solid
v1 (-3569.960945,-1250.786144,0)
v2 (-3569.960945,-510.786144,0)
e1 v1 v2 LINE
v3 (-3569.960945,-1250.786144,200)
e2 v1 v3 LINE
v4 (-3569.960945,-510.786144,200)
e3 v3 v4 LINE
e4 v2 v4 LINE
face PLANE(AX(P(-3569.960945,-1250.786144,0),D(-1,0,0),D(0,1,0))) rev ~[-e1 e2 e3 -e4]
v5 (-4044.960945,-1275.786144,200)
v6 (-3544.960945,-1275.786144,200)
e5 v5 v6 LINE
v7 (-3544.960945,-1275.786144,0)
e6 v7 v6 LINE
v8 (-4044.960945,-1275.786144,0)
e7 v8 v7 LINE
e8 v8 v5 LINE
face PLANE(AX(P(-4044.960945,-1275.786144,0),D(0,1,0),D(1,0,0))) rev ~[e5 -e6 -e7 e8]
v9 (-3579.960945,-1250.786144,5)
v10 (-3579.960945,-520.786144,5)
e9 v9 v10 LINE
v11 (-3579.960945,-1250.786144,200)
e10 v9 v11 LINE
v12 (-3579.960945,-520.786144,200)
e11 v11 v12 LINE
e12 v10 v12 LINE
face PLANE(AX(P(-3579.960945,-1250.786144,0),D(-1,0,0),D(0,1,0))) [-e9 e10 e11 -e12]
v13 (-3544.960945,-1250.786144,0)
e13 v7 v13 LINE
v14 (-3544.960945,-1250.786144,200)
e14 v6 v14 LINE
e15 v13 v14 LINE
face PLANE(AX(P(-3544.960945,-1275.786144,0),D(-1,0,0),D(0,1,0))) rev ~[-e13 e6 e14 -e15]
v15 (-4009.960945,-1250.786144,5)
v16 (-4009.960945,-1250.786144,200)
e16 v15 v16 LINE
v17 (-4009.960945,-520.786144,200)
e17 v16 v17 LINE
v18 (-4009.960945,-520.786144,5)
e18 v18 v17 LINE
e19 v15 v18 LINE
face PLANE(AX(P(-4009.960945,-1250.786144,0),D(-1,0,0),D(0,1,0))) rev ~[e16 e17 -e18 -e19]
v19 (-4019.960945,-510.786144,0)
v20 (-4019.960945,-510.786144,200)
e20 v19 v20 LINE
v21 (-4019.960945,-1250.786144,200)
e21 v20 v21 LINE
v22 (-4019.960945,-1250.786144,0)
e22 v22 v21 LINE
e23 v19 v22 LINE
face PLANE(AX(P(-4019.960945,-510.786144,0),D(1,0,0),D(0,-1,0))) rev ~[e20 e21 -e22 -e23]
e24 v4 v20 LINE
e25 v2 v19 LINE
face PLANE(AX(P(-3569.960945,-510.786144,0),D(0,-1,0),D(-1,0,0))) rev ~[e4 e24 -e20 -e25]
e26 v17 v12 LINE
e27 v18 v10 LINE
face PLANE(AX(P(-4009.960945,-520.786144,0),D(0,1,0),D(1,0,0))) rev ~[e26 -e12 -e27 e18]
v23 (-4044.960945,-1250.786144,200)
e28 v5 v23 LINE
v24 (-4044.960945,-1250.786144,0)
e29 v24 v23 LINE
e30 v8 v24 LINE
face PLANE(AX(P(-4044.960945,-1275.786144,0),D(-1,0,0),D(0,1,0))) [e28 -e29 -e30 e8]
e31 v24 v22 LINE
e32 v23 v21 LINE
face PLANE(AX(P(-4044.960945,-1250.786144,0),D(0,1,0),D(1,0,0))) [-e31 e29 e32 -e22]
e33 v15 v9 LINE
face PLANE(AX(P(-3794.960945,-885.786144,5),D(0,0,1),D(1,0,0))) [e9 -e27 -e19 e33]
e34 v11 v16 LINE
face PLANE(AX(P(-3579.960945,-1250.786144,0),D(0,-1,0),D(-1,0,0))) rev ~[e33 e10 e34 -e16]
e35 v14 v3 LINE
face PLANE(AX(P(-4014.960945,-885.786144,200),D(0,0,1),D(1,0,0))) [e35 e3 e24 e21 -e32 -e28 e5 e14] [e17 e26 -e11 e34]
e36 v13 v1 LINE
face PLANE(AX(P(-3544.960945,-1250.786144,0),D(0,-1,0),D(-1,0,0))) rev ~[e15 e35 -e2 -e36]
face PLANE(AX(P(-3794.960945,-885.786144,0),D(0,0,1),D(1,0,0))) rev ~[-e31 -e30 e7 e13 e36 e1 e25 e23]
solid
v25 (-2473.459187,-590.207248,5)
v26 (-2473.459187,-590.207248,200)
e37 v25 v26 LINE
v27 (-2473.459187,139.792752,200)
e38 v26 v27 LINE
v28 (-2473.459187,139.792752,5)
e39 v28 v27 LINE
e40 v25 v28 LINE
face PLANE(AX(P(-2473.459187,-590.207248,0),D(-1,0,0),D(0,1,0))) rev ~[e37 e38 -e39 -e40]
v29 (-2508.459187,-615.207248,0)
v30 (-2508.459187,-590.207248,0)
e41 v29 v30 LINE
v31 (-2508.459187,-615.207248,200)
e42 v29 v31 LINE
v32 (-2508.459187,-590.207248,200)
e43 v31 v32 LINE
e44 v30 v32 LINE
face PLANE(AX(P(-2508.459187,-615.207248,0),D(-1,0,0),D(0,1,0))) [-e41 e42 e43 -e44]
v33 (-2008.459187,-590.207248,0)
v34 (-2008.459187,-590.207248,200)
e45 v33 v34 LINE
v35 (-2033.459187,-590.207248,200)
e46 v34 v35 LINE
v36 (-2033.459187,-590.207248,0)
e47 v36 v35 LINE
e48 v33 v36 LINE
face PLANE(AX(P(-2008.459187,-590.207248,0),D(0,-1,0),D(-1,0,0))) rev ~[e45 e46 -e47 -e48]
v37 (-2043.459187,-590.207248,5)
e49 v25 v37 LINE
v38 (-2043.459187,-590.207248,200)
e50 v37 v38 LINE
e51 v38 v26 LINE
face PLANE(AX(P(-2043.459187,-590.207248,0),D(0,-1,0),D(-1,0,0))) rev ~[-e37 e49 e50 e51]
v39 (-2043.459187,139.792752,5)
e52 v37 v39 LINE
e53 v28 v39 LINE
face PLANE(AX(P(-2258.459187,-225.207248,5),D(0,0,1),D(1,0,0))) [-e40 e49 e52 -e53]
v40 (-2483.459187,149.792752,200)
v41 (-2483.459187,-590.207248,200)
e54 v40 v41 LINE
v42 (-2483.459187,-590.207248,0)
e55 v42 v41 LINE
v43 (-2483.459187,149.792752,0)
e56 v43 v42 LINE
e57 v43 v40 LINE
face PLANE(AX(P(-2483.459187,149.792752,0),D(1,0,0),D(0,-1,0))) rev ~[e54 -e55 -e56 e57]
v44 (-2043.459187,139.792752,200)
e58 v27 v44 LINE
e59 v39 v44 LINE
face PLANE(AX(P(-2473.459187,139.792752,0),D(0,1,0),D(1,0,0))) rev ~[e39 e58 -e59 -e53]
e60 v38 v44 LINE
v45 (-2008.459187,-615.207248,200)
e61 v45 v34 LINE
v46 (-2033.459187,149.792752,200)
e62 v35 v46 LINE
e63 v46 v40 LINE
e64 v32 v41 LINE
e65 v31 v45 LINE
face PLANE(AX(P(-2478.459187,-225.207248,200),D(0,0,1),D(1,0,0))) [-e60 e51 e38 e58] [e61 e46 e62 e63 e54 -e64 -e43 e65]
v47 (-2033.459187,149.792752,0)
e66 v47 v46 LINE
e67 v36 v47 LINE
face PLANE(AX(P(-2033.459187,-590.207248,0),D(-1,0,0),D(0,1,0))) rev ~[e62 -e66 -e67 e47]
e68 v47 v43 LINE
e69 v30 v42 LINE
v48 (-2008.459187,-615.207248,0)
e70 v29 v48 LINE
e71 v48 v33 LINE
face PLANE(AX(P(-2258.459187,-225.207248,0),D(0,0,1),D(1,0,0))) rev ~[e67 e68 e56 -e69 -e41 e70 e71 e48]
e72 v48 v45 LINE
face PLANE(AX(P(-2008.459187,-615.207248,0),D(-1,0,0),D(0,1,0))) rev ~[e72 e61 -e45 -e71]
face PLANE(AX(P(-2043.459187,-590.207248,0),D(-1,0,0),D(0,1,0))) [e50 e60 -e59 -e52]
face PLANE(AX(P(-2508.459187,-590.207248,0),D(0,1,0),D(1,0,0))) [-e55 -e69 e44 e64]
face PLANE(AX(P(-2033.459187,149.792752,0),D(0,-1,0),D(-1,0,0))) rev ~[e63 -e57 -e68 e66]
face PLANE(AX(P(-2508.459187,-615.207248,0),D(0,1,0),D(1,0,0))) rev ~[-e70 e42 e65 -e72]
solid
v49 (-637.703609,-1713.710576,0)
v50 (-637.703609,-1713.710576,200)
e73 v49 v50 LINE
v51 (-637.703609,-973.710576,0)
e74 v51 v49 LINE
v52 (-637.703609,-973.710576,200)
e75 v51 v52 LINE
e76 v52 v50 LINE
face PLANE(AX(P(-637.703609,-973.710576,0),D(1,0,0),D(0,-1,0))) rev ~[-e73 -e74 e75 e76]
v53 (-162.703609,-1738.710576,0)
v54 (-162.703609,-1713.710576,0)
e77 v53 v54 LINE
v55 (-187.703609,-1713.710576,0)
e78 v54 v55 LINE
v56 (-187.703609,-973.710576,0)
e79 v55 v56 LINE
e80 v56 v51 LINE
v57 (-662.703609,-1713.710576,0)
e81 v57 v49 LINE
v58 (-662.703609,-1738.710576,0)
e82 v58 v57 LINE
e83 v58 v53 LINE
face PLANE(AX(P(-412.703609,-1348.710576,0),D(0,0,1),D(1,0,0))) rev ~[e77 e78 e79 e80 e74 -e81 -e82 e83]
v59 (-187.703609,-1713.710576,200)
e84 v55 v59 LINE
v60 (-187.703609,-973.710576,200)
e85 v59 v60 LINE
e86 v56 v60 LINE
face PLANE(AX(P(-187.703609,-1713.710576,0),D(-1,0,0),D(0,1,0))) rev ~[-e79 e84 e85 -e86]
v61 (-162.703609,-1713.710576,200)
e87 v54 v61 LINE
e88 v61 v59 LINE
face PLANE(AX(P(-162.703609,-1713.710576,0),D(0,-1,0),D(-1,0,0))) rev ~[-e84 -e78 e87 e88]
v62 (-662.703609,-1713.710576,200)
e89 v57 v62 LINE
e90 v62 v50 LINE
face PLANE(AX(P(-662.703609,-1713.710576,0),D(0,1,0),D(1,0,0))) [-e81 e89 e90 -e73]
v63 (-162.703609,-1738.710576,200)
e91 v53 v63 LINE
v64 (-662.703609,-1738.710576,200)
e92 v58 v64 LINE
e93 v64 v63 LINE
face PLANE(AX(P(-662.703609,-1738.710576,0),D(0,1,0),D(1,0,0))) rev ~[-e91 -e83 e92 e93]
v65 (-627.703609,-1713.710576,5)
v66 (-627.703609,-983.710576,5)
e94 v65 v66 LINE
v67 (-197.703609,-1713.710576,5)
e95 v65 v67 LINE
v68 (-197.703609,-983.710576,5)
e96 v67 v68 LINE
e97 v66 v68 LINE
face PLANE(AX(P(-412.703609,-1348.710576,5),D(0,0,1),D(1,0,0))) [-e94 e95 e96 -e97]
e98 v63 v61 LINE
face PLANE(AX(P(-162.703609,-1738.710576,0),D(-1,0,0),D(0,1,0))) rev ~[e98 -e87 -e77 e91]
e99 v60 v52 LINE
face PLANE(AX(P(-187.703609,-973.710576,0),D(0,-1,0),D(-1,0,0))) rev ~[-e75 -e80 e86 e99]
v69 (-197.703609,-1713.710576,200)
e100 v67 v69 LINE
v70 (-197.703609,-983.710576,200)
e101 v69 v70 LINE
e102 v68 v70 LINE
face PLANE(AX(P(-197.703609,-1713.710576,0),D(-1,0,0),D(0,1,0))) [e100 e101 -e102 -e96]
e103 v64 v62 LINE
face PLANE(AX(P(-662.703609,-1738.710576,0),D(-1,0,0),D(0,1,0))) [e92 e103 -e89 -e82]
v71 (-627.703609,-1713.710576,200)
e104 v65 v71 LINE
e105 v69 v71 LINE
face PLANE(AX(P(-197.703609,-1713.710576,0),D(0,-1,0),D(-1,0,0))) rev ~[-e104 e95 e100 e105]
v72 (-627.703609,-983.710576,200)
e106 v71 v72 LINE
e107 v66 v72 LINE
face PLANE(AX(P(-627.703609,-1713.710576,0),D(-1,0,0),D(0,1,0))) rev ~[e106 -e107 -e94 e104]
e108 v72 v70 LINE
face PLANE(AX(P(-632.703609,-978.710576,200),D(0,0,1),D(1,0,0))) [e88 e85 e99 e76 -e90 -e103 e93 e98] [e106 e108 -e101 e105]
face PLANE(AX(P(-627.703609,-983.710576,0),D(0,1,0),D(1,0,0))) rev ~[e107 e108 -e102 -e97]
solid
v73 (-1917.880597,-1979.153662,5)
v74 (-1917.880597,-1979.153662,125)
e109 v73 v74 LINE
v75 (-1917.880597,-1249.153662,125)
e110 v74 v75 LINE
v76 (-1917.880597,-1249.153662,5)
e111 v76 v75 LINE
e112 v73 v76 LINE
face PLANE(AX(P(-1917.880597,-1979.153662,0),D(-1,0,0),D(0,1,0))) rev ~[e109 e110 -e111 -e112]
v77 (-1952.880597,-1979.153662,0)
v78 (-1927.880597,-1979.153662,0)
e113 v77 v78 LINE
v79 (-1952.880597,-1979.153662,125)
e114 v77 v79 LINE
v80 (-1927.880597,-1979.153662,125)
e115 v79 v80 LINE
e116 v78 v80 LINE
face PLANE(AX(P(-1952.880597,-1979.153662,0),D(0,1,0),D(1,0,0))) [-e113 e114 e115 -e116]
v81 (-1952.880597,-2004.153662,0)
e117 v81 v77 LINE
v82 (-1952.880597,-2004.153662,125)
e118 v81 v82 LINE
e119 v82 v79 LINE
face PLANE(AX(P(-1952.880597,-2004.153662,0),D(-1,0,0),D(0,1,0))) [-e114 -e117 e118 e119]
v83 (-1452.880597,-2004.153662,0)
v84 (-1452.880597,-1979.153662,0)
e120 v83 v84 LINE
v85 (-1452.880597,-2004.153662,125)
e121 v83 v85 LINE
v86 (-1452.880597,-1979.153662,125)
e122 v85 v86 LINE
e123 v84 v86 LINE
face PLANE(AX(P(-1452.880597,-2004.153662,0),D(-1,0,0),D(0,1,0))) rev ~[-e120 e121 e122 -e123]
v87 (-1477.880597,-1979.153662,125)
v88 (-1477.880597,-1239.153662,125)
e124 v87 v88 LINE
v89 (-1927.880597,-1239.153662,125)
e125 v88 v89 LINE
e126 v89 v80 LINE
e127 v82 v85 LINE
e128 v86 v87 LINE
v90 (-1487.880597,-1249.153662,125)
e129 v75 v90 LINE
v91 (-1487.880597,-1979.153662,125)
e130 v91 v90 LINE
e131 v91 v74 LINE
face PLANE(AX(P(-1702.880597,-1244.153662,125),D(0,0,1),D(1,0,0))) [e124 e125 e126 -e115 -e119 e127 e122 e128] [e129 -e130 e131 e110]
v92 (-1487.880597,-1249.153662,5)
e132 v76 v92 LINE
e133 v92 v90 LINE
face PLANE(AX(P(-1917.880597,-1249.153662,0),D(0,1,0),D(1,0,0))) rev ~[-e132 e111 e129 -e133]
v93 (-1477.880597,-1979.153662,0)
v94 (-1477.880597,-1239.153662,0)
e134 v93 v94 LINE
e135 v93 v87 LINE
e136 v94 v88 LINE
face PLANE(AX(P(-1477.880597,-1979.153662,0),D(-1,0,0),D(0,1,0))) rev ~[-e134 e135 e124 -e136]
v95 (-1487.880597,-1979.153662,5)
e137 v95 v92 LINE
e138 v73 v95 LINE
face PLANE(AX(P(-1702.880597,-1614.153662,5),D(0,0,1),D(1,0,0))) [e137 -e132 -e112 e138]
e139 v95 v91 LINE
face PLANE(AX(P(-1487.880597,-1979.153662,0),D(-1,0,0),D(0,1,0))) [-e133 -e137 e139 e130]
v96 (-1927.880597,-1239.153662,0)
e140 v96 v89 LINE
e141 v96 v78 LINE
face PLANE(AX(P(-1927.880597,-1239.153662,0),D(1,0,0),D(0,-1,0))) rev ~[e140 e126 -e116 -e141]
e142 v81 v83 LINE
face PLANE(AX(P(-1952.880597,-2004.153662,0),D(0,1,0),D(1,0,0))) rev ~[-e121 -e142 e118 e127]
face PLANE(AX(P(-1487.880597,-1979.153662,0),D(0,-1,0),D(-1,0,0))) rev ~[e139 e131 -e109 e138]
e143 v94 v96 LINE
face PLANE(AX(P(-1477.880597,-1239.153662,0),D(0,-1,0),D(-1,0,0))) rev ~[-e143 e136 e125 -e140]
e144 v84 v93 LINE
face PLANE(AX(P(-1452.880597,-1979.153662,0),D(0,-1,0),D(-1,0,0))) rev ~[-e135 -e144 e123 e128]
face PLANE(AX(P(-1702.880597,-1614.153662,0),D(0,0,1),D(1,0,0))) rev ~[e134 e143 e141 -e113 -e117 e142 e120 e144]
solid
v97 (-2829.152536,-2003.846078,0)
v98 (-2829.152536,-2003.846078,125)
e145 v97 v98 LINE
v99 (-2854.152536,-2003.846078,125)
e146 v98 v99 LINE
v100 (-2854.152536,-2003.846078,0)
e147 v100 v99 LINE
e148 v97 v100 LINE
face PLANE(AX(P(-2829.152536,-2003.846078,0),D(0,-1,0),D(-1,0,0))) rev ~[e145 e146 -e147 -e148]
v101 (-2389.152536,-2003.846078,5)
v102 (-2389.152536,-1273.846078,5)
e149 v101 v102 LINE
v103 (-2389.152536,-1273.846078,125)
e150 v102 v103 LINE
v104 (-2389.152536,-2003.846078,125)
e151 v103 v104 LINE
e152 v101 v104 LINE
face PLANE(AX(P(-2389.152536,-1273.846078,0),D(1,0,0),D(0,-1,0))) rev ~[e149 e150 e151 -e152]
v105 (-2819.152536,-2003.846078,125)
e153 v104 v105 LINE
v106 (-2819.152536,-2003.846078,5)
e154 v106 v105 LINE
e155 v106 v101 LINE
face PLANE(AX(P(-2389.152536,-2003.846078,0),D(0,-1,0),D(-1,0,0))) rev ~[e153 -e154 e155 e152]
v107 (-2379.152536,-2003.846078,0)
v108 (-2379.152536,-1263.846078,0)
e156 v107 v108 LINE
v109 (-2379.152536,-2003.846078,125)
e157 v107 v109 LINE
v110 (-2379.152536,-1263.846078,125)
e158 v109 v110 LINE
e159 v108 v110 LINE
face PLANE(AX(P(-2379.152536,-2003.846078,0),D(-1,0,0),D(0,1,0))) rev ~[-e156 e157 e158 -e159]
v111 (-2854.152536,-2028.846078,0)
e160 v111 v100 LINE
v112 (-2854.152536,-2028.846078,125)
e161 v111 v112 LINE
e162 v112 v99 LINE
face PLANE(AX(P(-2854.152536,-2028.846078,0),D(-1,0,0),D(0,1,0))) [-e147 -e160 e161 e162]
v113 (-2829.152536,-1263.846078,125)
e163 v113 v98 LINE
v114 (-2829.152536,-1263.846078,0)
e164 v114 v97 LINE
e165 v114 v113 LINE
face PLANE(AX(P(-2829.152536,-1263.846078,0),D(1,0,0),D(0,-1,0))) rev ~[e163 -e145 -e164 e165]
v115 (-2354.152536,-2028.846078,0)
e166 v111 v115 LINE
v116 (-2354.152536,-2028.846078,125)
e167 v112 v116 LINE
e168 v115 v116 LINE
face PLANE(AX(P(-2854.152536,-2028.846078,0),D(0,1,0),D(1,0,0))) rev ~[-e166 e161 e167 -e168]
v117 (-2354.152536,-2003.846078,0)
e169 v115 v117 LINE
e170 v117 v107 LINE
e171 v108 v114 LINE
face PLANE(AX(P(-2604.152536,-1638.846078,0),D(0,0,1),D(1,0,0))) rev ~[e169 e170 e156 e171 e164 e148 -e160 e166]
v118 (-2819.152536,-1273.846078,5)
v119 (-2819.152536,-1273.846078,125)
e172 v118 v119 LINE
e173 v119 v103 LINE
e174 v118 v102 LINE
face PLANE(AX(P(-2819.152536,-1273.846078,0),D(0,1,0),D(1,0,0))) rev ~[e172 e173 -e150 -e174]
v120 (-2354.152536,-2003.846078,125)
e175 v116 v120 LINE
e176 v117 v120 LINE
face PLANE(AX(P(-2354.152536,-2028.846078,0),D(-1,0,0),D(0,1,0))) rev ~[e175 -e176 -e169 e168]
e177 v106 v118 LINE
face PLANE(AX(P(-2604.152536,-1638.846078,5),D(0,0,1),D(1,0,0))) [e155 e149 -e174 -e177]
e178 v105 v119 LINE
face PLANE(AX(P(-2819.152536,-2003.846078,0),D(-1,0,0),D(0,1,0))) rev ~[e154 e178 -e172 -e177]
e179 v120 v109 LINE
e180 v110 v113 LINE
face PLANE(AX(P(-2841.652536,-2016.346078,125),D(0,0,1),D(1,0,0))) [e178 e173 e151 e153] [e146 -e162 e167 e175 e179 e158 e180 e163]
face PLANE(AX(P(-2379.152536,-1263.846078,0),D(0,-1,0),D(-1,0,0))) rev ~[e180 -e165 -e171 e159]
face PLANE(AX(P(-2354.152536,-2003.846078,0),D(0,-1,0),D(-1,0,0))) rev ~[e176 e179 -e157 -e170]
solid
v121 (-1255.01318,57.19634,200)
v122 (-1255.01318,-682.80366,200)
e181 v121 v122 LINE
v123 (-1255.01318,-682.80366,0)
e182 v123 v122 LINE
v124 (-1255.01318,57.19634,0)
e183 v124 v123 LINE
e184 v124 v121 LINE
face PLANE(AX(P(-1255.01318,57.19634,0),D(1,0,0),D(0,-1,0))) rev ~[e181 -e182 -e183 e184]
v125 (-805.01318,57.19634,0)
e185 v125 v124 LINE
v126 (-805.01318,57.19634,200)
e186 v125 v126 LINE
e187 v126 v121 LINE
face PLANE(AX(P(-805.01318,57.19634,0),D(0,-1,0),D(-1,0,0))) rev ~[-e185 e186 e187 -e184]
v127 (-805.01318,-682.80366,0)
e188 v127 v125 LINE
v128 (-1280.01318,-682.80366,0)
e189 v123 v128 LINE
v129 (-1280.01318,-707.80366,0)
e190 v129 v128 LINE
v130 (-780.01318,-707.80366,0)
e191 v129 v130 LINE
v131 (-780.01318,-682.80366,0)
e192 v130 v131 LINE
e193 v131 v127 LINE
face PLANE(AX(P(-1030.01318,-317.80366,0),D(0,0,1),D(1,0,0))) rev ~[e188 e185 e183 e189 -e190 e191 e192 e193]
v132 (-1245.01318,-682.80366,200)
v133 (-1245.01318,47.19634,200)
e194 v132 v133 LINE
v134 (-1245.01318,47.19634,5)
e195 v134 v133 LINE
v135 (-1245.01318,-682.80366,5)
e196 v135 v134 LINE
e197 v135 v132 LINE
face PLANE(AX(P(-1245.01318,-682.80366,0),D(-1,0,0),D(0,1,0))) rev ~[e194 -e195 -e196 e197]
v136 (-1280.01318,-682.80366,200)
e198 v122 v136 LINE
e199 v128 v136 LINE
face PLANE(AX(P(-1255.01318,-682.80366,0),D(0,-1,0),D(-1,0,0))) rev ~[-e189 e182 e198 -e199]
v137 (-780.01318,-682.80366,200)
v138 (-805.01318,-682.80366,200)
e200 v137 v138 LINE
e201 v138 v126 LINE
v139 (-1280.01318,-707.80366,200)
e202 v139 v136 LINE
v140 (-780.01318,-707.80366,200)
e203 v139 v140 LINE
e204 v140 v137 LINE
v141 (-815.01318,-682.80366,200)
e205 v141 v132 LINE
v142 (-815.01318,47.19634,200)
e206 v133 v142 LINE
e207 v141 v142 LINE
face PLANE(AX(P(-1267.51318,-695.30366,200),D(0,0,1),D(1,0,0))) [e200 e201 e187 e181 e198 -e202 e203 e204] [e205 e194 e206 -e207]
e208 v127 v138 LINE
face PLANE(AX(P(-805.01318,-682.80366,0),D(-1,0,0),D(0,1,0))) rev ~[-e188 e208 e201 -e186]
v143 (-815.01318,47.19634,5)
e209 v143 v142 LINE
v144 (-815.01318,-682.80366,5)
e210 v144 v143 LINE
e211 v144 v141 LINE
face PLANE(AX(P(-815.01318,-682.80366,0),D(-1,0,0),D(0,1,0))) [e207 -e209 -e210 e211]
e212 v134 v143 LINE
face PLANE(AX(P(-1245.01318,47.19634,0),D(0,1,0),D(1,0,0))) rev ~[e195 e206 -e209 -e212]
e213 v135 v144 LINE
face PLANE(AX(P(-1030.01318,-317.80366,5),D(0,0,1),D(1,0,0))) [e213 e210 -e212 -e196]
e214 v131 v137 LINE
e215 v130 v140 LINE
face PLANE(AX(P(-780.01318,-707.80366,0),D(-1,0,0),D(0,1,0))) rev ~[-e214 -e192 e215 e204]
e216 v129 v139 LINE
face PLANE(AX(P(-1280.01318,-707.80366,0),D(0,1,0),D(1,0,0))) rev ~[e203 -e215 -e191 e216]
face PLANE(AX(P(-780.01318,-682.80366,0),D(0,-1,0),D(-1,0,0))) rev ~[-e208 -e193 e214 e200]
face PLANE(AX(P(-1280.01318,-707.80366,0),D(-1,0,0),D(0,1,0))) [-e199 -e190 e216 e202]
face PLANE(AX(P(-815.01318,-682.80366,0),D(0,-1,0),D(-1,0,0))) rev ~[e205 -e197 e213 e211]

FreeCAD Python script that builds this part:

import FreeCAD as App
import Part
import Sketcher
Q = App.Units.Quantity


def add_polygon(sketch, points):
    """Adds a closed chain of lines whose ends are joined by coincident constraints."""
    first, n = sketch.GeometryCount, len(points)
    for a, b in zip(points, points[1:] + points[:1]):
        sketch.addGeometry(Part.LineSegment(App.Vector(*a, 0), App.Vector(*b, 0)), False)
    for i in range(n):
        sketch.addConstraint(Sketcher.Constraint("Coincident", first + i, 2, first + (i + 1) % n, 1))

doc = App.newDocument("Part")
body = doc.addObject("PartDesign::Body", "Body")

# Sketch on XY plane
sketch1 = body.newObject("Sketcher::SketchObject", "Sketch")
sketch1.AttachmentSupport = (doc.getObject("XY_Plane"), [""])
sketch1.MapMode = "FlatFace"
add_polygon(sketch1, [(-3570, -1251), (-3570, -511), (-4020, -511), (-4020, -1251), (-4045, -1251), (-4045, -1276), (-3545, -1276), (-3545, -1251)])  # lines 0-7
add_polygon(sketch1, [(-4010, -1251), (-4010, -521), (-3580, -521), (-3580, -1251)])  # lines 8-11
sketch1.addConstraint(Sketcher.Constraint("Vertical", 0))
sketch1.addConstraint(Sketcher.Constraint("Horizontal", 1))
sketch1.addConstraint(Sketcher.Constraint("Vertical", 2))
sketch1.addConstraint(Sketcher.Constraint("Horizontal", 3))
sketch1.addConstraint(Sketcher.Constraint("Vertical", 4))
sketch1.addConstraint(Sketcher.Constraint("Horizontal", 5))
sketch1.addConstraint(Sketcher.Constraint("Vertical", 6))
sketch1.addConstraint(Sketcher.Constraint("Horizontal", 7))
sketch1.addConstraint(Sketcher.Constraint("Vertical", 8))
sketch1.addConstraint(Sketcher.Constraint("Horizontal", 9))
sketch1.addConstraint(Sketcher.Constraint("Vertical", 10))
sketch1.addConstraint(Sketcher.Constraint("Horizontal", 11))
sketch1.addConstraint(Sketcher.Constraint("Horizontal", 3, 2, 6, 2))
sketch1.addConstraint(Sketcher.Constraint("Horizontal", 7, 2, 10, 2))
sketch1.addConstraint(Sketcher.Constraint("Equal", 3, 7))
sketch1.addConstraint(Sketcher.Constraint("Equal", 7, 4))
sketch1.addConstraint(Sketcher.Constraint("DistanceX", 1, 2, 1, 1, Q("450 mm")))
sketch1.addConstraint(Sketcher.Constraint("DistanceX", 3, 2, 3, 1, Q("25 mm")))
sketch1.addConstraint(Sketcher.Constraint("DistanceX", 9, 1, 9, 2, Q("430 mm")))
sketch1.addConstraint(Sketcher.Constraint("DistanceY", 0, 1, 0, 2, Q("740 mm")))
sketch1.addConstraint(Sketcher.Constraint("DistanceY", 8, 1, 8, 2, Q("730 mm")))
sketch1.addConstraint(Sketcher.Constraint("DistanceX", 1, 2, 8, 2, Q("10 mm")))
sketch1.addConstraint(Sketcher.Constraint("DistanceX", 0, 2, -1, 1, Q("3569.960945 mm")))
sketch1.addConstraint(Sketcher.Constraint("DistanceY", 0, 2, -1, 1, Q("510.786144 mm")))
pad1 = body.newObject("PartDesign::Pad", "Pad")
pad1.Profile = sketch1
pad1.Length = 200

# Sketch on XY plane
sketch2 = body.newObject("Sketcher::SketchObject", "Sketch001")
sketch2.AttachmentSupport = (doc.getObject("XY_Plane"), [""])
sketch2.MapMode = "FlatFace"
add_polygon(sketch2, [(-4010, -521), (-4010, -1251), (-3580, -1251), (-3580, -521)])  # lines 0-3
sketch2.addConstraint(Sketcher.Constraint("Vertical", 0))
sketch2.addConstraint(Sketcher.Constraint("Horizontal", 1))
sketch2.addConstraint(Sketcher.Constraint("Vertical", 2))
sketch2.addConstraint(Sketcher.Constraint("Horizontal", 3))
sketch2.addConstraint(Sketcher.Constraint("DistanceX", 1, 1, 1, 2, Q("430 mm")))
sketch2.addConstraint(Sketcher.Constraint("DistanceY", 0, 2, 0, 1, Q("730 mm")))
sketch2.addConstraint(Sketcher.Constraint("DistanceX", 0, 2, -1, 1, Q("4009.960945 mm")))
sketch2.addConstraint(Sketcher.Constraint("DistanceY", 0, 2, -1, 1, Q("1250.786144 mm")))
pad2 = body.newObject("PartDesign::Pad", "Pad001")
pad2.Profile = sketch2
pad2.Length = 5
body2 = doc.addObject("PartDesign::Body", "Body001")

# Sketch on XY plane
sketch3 = body2.newObject("Sketcher::SketchObject", "Sketch002")
sketch3.AttachmentSupport = (doc.getObject("XY_Plane001"), [""])
sketch3.MapMode = "FlatFace"
add_polygon(sketch3, [(-2033, 150), (-2483, 150), (-2483, -590), (-2508, -590), (-2508, -615), (-2008, -615), (-2008, -590), (-2033, -590)])  # lines 0-7
add_polygon(sketch3, [(-2473, -590), (-2473, 140), (-2043, 140), (-2043, -590)])  # lines 8-11
sketch3.addConstraint(Sketcher.Constraint("Horizontal", 0))
sketch3.addConstraint(Sketcher.Constraint("Vertical", 1))
sketch3.addConstraint(Sketcher.Constraint("Horizontal", 2))
sketch3.addConstraint(Sketcher.Constraint("Vertical", 3))
sketch3.addConstraint(Sketcher.Constraint("Horizontal", 4))
sketch3.addConstraint(Sketcher.Constraint("Vertical", 5))
sketch3.addConstraint(Sketcher.Constraint("Horizontal", 6))
sketch3.addConstraint(Sketcher.Constraint("Vertical", 7))
sketch3.addConstraint(Sketcher.Constraint("Vertical", 8))
sketch3.addConstraint(Sketcher.Constraint("Horizontal", 9))
sketch3.addConstraint(Sketcher.Constraint("Vertical", 10))
sketch3.addConstraint(Sketcher.Constraint("Horizontal", 11))
sketch3.addConstraint(Sketcher.Constraint("Horizontal", 2, 2, 5, 2))
sketch3.addConstraint(Sketcher.Constraint("Horizontal", 6, 2, 10, 2))
sketch3.addConstraint(Sketcher.Constraint("Equal", 2, 6))
sketch3.addConstraint(Sketcher.Constraint("Equal", 6, 3))
sketch3.addConstraint(Sketcher.Constraint("DistanceX", 0, 2, 0, 1, Q("450 mm")))
sketch3.addConstraint(Sketcher.Constraint("DistanceX", 2, 2, 2, 1, Q("25 mm")))
sketch3.addConstraint(Sketcher.Constraint("DistanceX", 9, 1, 9, 2, Q("430 mm")))
sketch3.addConstraint(Sketcher.Constraint("DistanceY", 1, 2, 1, 1, Q("740 mm")))
sketch3.addConstraint(Sketcher.Constraint("DistanceY", 8, 1, 8, 2, Q("730 mm")))
sketch3.addConstraint(Sketcher.Constraint("DistanceX", 0, 2, 8, 2, Q("10 mm")))
sketch3.addConstraint(Sketcher.Constraint("DistanceY", -1, 1, 0, 2, Q("149.792752 mm")))
sketch3.addConstraint(Sketcher.Constraint("DistanceX", 0, 2, -1, 1, Q("2483.459187 mm")))
pad3 = body2.newObject("PartDesign::Pad", "Pad002")
pad3.Profile = sketch3
pad3.Length = 200

# Sketch on XY plane
sketch4 = body2.newObject("Sketcher::SketchObject", "Sketch003")
sketch4.AttachmentSupport = (doc.getObject("XY_Plane001"), [""])
sketch4.MapMode = "FlatFace"
add_polygon(sketch4, [(-2473, 140), (-2473, -590), (-2043, -590), (-2043, 140)])  # lines 0-3
sketch4.addConstraint(Sketcher.Constraint("Vertical", 0))
sketch4.addConstraint(Sketcher.Constraint("Horizontal", 1))
sketch4.addConstraint(Sketcher.Constraint("Vertical", 2))
sketch4.addConstraint(Sketcher.Constraint("Horizontal", 3))
sketch4.addConstraint(Sketcher.Constraint("DistanceX", 1, 1, 1, 2, Q("430 mm")))
sketch4.addConstraint(Sketcher.Constraint("DistanceY", 0, 2, 0, 1, Q("730 mm")))
sketch4.addConstraint(Sketcher.Constraint("DistanceY", 0, 2, -1, 1, Q("590.207248 mm")))
sketch4.addConstraint(Sketcher.Constraint("DistanceX", 0, 2, -1, 1, Q("2473.459187 mm")))
pad4 = body2.newObject("PartDesign::Pad", "Pad003")
pad4.Profile = sketch4
pad4.Length = 5
body3 = doc.addObject("PartDesign::Body", "Body002")

# Sketch on XY plane
sketch5 = body3.newObject("Sketcher::SketchObject", "Sketch004")
sketch5.AttachmentSupport = (doc.getObject("XY_Plane002"), [""])
sketch5.MapMode = "FlatFace"
add_polygon(sketch5, [(-805, -683), (-805, 57), (-1255, 57), (-1255, -683), (-1280, -683), (-1280, -708), (-780, -708), (-780, -683)])  # lines 0-7
add_polygon(sketch5, [(-815, 47), (-815, -683), (-1245, -683), (-1245, 47)])  # lines 8-11
sketch5.addConstraint(Sketcher.Constraint("Vertical", 0))
sketch5.addConstraint(Sketcher.Constraint("Horizontal", 1))
sketch5.addConstraint(Sketcher.Constraint("Vertical", 2))
sketch5.addConstraint(Sketcher.Constraint("Horizontal", 3))
sketch5.addConstraint(Sketcher.Constraint("Vertical", 4))
sketch5.addConstraint(Sketcher.Constraint("Horizontal", 5))
sketch5.addConstraint(Sketcher.Constraint("Vertical", 6))
sketch5.addConstraint(Sketcher.Constraint("Horizontal", 7))
sketch5.addConstraint(Sketcher.Constraint("Vertical", 8))
sketch5.addConstraint(Sketcher.Constraint("Horizontal", 9))
sketch5.addConstraint(Sketcher.Constraint("Vertical", 10))
sketch5.addConstraint(Sketcher.Constraint("Horizontal", 11))
sketch5.addConstraint(Sketcher.Constraint("Horizontal", 3, 2, 6, 2))
sketch5.addConstraint(Sketcher.Constraint("Horizontal", 7, 2, 8, 2))
sketch5.addConstraint(Sketcher.Constraint("Equal", 3, 7))
sketch5.addConstraint(Sketcher.Constraint("Equal", 7, 4))
sketch5.addConstraint(Sketcher.Constraint("DistanceX", 1, 2, 1, 1, Q("450 mm")))
sketch5.addConstraint(Sketcher.Constraint("DistanceX", 3, 2, 3, 1, Q("25 mm")))
sketch5.addConstraint(Sketcher.Constraint("DistanceX", 9, 2, 9, 1, Q("430 mm")))
sketch5.addConstraint(Sketcher.Constraint("DistanceY", 0, 1, 0, 2, Q("740 mm")))
sketch5.addConstraint(Sketcher.Constraint("DistanceY", 8, 2, 8, 1, Q("730 mm")))
sketch5.addConstraint(Sketcher.Constraint("DistanceX", 8, 2, 7, 2, Q("10 mm")))
sketch5.addConstraint(Sketcher.Constraint("DistanceX", 0, 2, -1, 1, Q("805.01318 mm")))
sketch5.addConstraint(Sketcher.Constraint("DistanceY", -1, 1, 0, 2, Q("57.19634 mm")))
pad5 = body3.newObject("PartDesign::Pad", "Pad004")
pad5.Profile = sketch5
pad5.Length = 200

# Sketch on XY plane
sketch6 = body3.newObject("Sketcher::SketchObject", "Sketch005")
sketch6.AttachmentSupport = (doc.getObject("XY_Plane002"), [""])
sketch6.MapMode = "FlatFace"
add_polygon(sketch6, [(-1245, 47), (-1245, -683), (-815, -683), (-815, 47)])  # lines 0-3
sketch6.addConstraint(Sketcher.Constraint("Vertical", 0))
sketch6.addConstraint(Sketcher.Constraint("Horizontal", 1))
sketch6.addConstraint(Sketcher.Constraint("Vertical", 2))
sketch6.addConstraint(Sketcher.Constraint("Horizontal", 3))
sketch6.addConstraint(Sketcher.Constraint("DistanceX", 1, 1, 1, 2, Q("430 mm")))
sketch6.addConstraint(Sketcher.Constraint("DistanceY", 0, 2, 0, 1, Q("730 mm")))
sketch6.addConstraint(Sketcher.Constraint("DistanceX", 0, 2, -1, 1, Q("1245.01318 mm")))
sketch6.addConstraint(Sketcher.Constraint("DistanceY", 0, 2, -1, 1, Q("682.80366 mm")))
pad6 = body3.newObject("PartDesign::Pad", "Pad005")
pad6.Profile = sketch6
pad6.Length = 5
body4 = doc.addObject("PartDesign::Body", "Body003")

# Sketch on XY plane
sketch7 = body4.newObject("Sketcher::SketchObject", "Sketch006")
sketch7.AttachmentSupport = (doc.getObject("XY_Plane003"), [""])
sketch7.MapMode = "FlatFace"
add_polygon(sketch7, [(-638, -974), (-638, -1714), (-663, -1714), (-663, -1739), (-163, -1739), (-163, -1714), (-188, -1714), (-188, -974)])  # lines 0-7
add_polygon(sketch7, [(-628, -1714), (-628, -984), (-198, -984), (-198, -1714)])  # lines 8-11
sketch7.addConstraint(Sketcher.Constraint("Vertical", 0))
sketch7.addConstraint(Sketcher.Constraint("Horizontal", 1))
sketch7.addConstraint(Sketcher.Constraint("Vertical", 2))
sketch7.addConstraint(Sketcher.Constraint("Horizontal", 3))
sketch7.addConstraint(Sketcher.Constraint("Vertical", 4))
sketch7.addConstraint(Sketcher.Constraint("Horizontal", 5))
sketch7.addConstraint(Sketcher.Constraint("Vertical", 6))
sketch7.addConstraint(Sketcher.Constraint("Horizontal", 7))
sketch7.addConstraint(Sketcher.Constraint("Vertical", 8))
sketch7.addConstraint(Sketcher.Constraint("Horizontal", 9))
sketch7.addConstraint(Sketcher.Constraint("Vertical", 10))
sketch7.addConstraint(Sketcher.Constraint("Horizontal", 11))
sketch7.addConstraint(Sketcher.Constraint("Horizontal", 1, 2, 4, 2))
sketch7.addConstraint(Sketcher.Constraint("Horizontal", 5, 2, 10, 2))
sketch7.addConstraint(Sketcher.Constraint("Equal", 1, 5))
sketch7.addConstraint(Sketcher.Constraint("Equal", 5, 2))
sketch7.addConstraint(Sketcher.Constraint("DistanceX", 1, 2, 1, 1, Q("25 mm")))
sketch7.addConstraint(Sketcher.Constraint("DistanceX", 3, 1, 3, 2, Q("500 mm")))
sketch7.addConstraint(Sketcher.Constraint("DistanceX", 9, 1, 9, 2, Q("430 mm")))
sketch7.addConstraint(Sketcher.Constraint("DistanceY", 0, 2, 0, 1, Q("740 mm")))
sketch7.addConstraint(Sketcher.Constraint("DistanceY", 8, 1, 8, 2, Q("730 mm")))
sketch7.addConstraint(Sketcher.Constraint("DistanceX", 7, 2, 8, 2, Q("10 mm")))
sketch7.addConstraint(Sketcher.Constraint("DistanceX", 0, 2, -1, 1, Q("637.703609 mm")))
sketch7.addConstraint(Sketcher.Constraint("DistanceY", 0, 2, -1, 1, Q("1713.710576 mm")))
pad7 = body4.newObject("PartDesign::Pad", "Pad006")
pad7.Profile = sketch7
pad7.Length = 200

# Sketch on XY plane
sketch8 = body4.newObject("Sketcher::SketchObject", "Sketch007")
sketch8.AttachmentSupport = (doc.getObject("XY_Plane003"), [""])
sketch8.MapMode = "FlatFace"
add_polygon(sketch8, [(-628, -984), (-628, -1714), (-198, -1714), (-198, -984)])  # lines 0-3
sketch8.addConstraint(Sketcher.Constraint("Vertical", 0))
sketch8.addConstraint(Sketcher.Constraint("Horizontal", 1))
sketch8.addConstraint(Sketcher.Constraint("Vertical", 2))
sketch8.addConstraint(Sketcher.Constraint("Horizontal", 3))
sketch8.addConstraint(Sketcher.Constraint("DistanceX", 1, 1, 1, 2, Q("430 mm")))
sketch8.addConstraint(Sketcher.Constraint("DistanceY", 0, 2, 0, 1, Q("730 mm")))
sketch8.addConstraint(Sketcher.Constraint("DistanceX", 0, 2, -1, 1, Q("627.703609 mm")))
sketch8.addConstraint(Sketcher.Constraint("DistanceY", 0, 2, -1, 1, Q("1713.710576 mm")))
pad8 = body4.newObject("PartDesign::Pad", "Pad007")
pad8.Profile = sketch8
pad8.Length = 5
body5 = doc.addObject("PartDesign::Body", "Body004")

# Sketch on XY plane
sketch9 = body5.newObject("Sketcher::SketchObject", "Sketch008")
sketch9.AttachmentSupport = (doc.getObject("XY_Plane004"), [""])
sketch9.MapMode = "FlatFace"
add_polygon(sketch9, [(-2379, -1264), (-2829, -1264), (-2829, -2004), (-2854, -2004), (-2854, -2029), (-2354, -2029), (-2354, -2004), (-2379, -2004)])  # lines 0-7
add_polygon(sketch9, [(-2819, -2004), (-2819, -1274), (-2389, -1274), (-2389, -2004)])  # lines 8-11
sketch9.addConstraint(Sketcher.Constraint("Horizontal", 0))
sketch9.addConstraint(Sketcher.Constraint("Vertical", 1))
sketch9.addConstraint(Sketcher.Constraint("Horizontal", 2))
sketch9.addConstraint(Sketcher.Constraint("Vertical", 3))
sketch9.addConstraint(Sketcher.Constraint("Horizontal", 4))
sketch9.addConstraint(Sketcher.Constraint("Vertical", 5))
sketch9.addConstraint(Sketcher.Constraint("Horizontal", 6))
sketch9.addConstraint(Sketcher.Constraint("Vertical", 7))
sketch9.addConstraint(Sketcher.Constraint("Vertical", 8))
sketch9.addConstraint(Sketcher.Constraint("Horizontal", 9))
sketch9.addConstraint(Sketcher.Constraint("Vertical", 10))
sketch9.addConstraint(Sketcher.Constraint("Horizontal", 11))
sketch9.addConstraint(Sketcher.Constraint("Horizontal", 2, 2, 5, 2))
sketch9.addConstraint(Sketcher.Constraint("Horizontal", 6, 2, 10, 2))
sketch9.addConstraint(Sketcher.Constraint("Equal", 2, 6))
sketch9.addConstraint(Sketcher.Constraint("Equal", 6, 3))
sketch9.addConstraint(Sketcher.Constraint("DistanceX", 0, 2, 0, 1, Q("450 mm")))
sketch9.addConstraint(Sketcher.Constraint("DistanceX", 2, 2, 2, 1, Q("25 mm")))
sketch9.addConstraint(Sketcher.Constraint("DistanceX", 9, 1, 9, 2, Q("430 mm")))
sketch9.addConstraint(Sketcher.Constraint("DistanceY", 1, 2, 1, 1, Q("740 mm")))
sketch9.addConstraint(Sketcher.Constraint("DistanceY", 8, 1, 8, 2, Q("730 mm")))
sketch9.addConstraint(Sketcher.Constraint("DistanceX", 0, 2, 8, 2, Q("10 mm")))
sketch9.addConstraint(Sketcher.Constraint("DistanceY", 0, 2, -1, 1, Q("1263.846078 mm")))
sketch9.addConstraint(Sketcher.Constraint("DistanceX", 0, 2, -1, 1, Q("2829.152536 mm")))
pad9 = body5.newObject("PartDesign::Pad", "Pad008")
pad9.Profile = sketch9
pad9.Length = 125

# Sketch on XY plane
sketch10 = body5.newObject("Sketcher::SketchObject", "Sketch009")
sketch10.AttachmentSupport = (doc.getObject("XY_Plane004"), [""])
sketch10.MapMode = "FlatFace"
add_polygon(sketch10, [(-2819, -1274), (-2819, -2004), (-2389, -2004), (-2389, -1274)])  # lines 0-3
sketch10.addConstraint(Sketcher.Constraint("Vertical", 0))
sketch10.addConstraint(Sketcher.Constraint("Horizontal", 1))
sketch10.addConstraint(Sketcher.Constraint("Vertical", 2))
sketch10.addConstraint(Sketcher.Constraint("Horizontal", 3))
sketch10.addConstraint(Sketcher.Constraint("DistanceX", 1, 1, 1, 2, Q("430 mm")))
sketch10.addConstraint(Sketcher.Constraint("DistanceY", 0, 2, 0, 1, Q("730 mm")))
sketch10.addConstraint(Sketcher.Constraint("DistanceY", 0, 2, -1, 1, Q("2003.846078 mm")))
sketch10.addConstraint(Sketcher.Constraint("DistanceX", 0, 2, -1, 1, Q("2819.152536 mm")))
pad10 = body5.newObject("PartDesign::Pad", "Pad009")
pad10.Profile = sketch10
pad10.Length = 5
body6 = doc.addObject("PartDesign::Body", "Body005")

# Sketch on XY plane
sketch11 = body6.newObject("Sketcher::SketchObject", "Sketch010")
sketch11.AttachmentSupport = (doc.getObject("XY_Plane005"), [""])
sketch11.MapMode = "FlatFace"
add_polygon(sketch11, [(-1478, -1979), (-1478, -1239), (-1928, -1239), (-1928, -1979), (-1953, -1979), (-1953, -2004), (-1453, -2004), (-1453, -1979)])  # lines 0-7
add_polygon(sketch11, [(-1918, -1249), (-1488, -1249), (-1488, -1979), (-1918, -1979)])  # lines 8-11
sketch11.addConstraint(Sketcher.Constraint("Vertical", 0))
sketch11.addConstraint(Sketcher.Constraint("Horizontal", 1))
sketch11.addConstraint(Sketcher.Constraint("Vertical", 2))
sketch11.addConstraint(Sketcher.Constraint("Horizontal", 3))
sketch11.addConstraint(Sketcher.Constraint("Vertical", 4))
sketch11.addConstraint(Sketcher.Constraint("Horizontal", 5))
sketch11.addConstraint(Sketcher.Constraint("Vertical", 6))
sketch11.addConstraint(Sketcher.Constraint("Horizontal", 7))
sketch11.addConstraint(Sketcher.Constraint("Horizontal", 8))
sketch11.addConstraint(Sketcher.Constraint("Vertical", 9))
sketch11.addConstraint(Sketcher.Constraint("Horizontal", 10))
sketch11.addConstraint(Sketcher.Constraint("Vertical", 11))
sketch11.addConstraint(Sketcher.Constraint("Horizontal", 3, 2, 6, 2))
sketch11.addConstraint(Sketcher.Constraint("Horizontal", 7, 2, 9, 2))
sketch11.addConstraint(Sketcher.Constraint("Equal", 3, 7))
sketch11.addConstraint(Sketcher.Constraint("Equal", 7, 4))
sketch11.addConstraint(Sketcher.Constraint("DistanceX", 1, 2, 1, 1, Q("450 mm")))
sketch11.addConstraint(Sketcher.Constraint("DistanceX", 3, 2, 3, 1, Q("25 mm")))
sketch11.addConstraint(Sketcher.Constraint("DistanceX", 8, 1, 8, 2, Q("430 mm")))
sketch11.addConstraint(Sketcher.Constraint("DistanceY", 0, 1, 0, 2, Q("740 mm")))
sketch11.addConstraint(Sketcher.Constraint("DistanceY", 9, 2, 9, 1, Q("730 mm")))
sketch11.addConstraint(Sketcher.Constraint("DistanceX", 8, 2, 0, 2, Q("10 mm")))
sketch11.addConstraint(Sketcher.Constraint("DistanceX", 0, 2, -1, 1, Q("1477.880597 mm")))
sketch11.addConstraint(Sketcher.Constraint("DistanceY", 0, 2, -1, 1, Q("1239.153662 mm")))
pad11 = body6.newObject("PartDesign::Pad", "Pad010")
pad11.Profile = sketch11
pad11.Length = 125

# Sketch on XY plane
sketch12 = body6.newObject("Sketcher::SketchObject", "Sketch011")
sketch12.AttachmentSupport = (doc.getObject("XY_Plane005"), [""])
sketch12.MapMode = "FlatFace"
add_polygon(sketch12, [(-1918, -1249), (-1918, -1979), (-1488, -1979), (-1488, -1249)])  # lines 0-3
sketch12.addConstraint(Sketcher.Constraint("Vertical", 0))
sketch12.addConstraint(Sketcher.Constraint("Horizontal", 1))
sketch12.addConstraint(Sketcher.Constraint("Vertical", 2))
sketch12.addConstraint(Sketcher.Constraint("Horizontal", 3))
sketch12.addConstraint(Sketcher.Constraint("DistanceX", 1, 1, 1, 2, Q("430 mm")))
sketch12.addConstraint(Sketcher.Constraint("DistanceY", 0, 2, 0, 1, Q("730 mm")))
sketch12.addConstraint(Sketcher.Constraint("DistanceX", 0, 2, -1, 1, Q("1917.880597 mm")))
sketch12.addConstraint(Sketcher.Constraint("DistanceY", 0, 2, -1, 1, Q("1979.153662 mm")))
pad12 = body6.newObject("PartDesign::Pad", "Pad011")
pad12.Profile = sketch12
pad12.Length = 5

doc.recompute()
